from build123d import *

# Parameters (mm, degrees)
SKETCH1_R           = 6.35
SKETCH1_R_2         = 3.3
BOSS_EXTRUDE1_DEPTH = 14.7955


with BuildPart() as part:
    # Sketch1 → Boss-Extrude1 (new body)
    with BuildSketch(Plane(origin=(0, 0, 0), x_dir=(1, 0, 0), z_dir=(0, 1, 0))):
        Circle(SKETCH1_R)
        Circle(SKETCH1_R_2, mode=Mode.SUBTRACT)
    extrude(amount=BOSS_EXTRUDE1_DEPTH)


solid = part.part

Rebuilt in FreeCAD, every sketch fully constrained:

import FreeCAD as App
import Part
import Sketcher

V = App.Vector
Q = App.Units.Quantity

doc = App.newDocument("Part")
body = doc.addObject("PartDesign::Body", "Body")

# Sketch on XZ plane
sketch1 = body.newObject("Sketcher::SketchObject", "Sketch")
sketch1.AttachmentSupport = (doc.getObject("XZ_Plane"), [""])
sketch1.MapMode = "FlatFace"
sketch1.addGeometry(Part.Circle(V(0, 0, 0), V(0, 0, 1), 6.3), False)
sketch1.addGeometry(Part.Circle(V(0, 0, 0), V(0, 0, 1), 3.3), False)
sketch1.addConstraint(Sketcher.Constraint("Coincident", 0, 3, -1, 1))
sketch1.addConstraint(Sketcher.Constraint("Coincident", 1, 3, -1, 1))
sketch1.addConstraint(Sketcher.Constraint("Diameter", 0, Q("12.7 mm")))
sketch1.addConstraint(Sketcher.Constraint("Diameter", 1, Q("6.6 mm")))
pad1 = body.newObject("PartDesign::Pad", "Pad")
pad1.Profile = sketch1
pad1.Length = 14.7955
pad1.Reversed = True

doc.recompute()
